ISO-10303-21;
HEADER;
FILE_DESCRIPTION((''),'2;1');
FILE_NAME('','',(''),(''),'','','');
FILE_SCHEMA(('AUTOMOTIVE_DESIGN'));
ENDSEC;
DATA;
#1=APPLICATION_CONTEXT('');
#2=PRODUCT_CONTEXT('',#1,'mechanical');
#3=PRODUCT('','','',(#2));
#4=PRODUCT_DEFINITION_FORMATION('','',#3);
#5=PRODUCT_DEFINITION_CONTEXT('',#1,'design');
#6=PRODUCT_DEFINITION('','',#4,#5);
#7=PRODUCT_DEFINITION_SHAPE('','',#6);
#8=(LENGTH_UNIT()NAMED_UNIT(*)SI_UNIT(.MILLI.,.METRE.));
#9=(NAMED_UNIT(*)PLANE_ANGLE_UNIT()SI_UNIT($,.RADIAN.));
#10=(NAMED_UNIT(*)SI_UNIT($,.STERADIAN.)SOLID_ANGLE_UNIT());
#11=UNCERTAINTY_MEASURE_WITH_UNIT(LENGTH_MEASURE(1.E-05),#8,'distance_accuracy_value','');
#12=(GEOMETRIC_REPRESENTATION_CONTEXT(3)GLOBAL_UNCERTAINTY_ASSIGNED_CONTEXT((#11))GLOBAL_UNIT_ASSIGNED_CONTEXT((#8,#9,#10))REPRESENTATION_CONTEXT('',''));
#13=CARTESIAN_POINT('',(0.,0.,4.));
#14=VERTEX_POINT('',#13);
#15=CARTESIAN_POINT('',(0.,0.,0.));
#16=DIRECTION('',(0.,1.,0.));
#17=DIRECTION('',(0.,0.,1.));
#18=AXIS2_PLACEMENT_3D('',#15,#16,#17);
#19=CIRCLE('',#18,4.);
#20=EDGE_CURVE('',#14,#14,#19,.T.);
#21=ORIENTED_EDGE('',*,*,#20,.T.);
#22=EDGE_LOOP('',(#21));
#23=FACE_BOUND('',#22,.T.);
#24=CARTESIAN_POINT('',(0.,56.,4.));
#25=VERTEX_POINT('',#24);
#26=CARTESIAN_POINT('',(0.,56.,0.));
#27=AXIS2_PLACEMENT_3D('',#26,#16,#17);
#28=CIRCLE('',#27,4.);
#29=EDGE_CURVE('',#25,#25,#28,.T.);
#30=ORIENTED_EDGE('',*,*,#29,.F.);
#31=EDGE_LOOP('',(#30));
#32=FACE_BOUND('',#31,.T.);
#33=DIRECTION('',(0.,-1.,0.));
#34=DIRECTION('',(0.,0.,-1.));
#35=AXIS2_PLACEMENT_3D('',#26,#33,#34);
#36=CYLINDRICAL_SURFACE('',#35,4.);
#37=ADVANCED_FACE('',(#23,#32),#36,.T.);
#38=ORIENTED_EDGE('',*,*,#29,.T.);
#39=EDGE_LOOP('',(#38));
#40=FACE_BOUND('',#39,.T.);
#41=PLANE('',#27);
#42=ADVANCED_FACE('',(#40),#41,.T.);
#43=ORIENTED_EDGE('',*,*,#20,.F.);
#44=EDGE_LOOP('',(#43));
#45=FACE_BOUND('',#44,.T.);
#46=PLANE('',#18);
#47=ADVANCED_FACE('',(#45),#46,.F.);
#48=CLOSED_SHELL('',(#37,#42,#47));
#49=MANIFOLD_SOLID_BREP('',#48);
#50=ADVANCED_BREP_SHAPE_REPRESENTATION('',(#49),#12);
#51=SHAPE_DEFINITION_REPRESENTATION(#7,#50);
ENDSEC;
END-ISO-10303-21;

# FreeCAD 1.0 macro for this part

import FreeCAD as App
import Part
import Sketcher
Q = App.Units.Quantity

doc = App.newDocument("Part")
body = doc.addObject("PartDesign::Body", "Body")

# Sketch on XZ plane
sketch1 = body.newObject("Sketcher::SketchObject", "Sketch")
sketch1.AttachmentSupport = (doc.getObject("XZ_Plane"), [""])
sketch1.MapMode = "FlatFace"
sketch1.addGeometry(Part.Circle(App.Vector(0, 0, 0), App.Vector(0, 0, 1), 4), False)
sketch1.addConstraint([
    Sketcher.Constraint("Coincident", 0, 3, -1, 1),
    Sketcher.Constraint("Diameter", 0, Q("8 mm")),
])
pad1 = body.newObject("PartDesign::Pad", "Pad")
pad1.Profile = sketch1
pad1.Length = 56
pad1.Reversed = True

doc.recompute()
